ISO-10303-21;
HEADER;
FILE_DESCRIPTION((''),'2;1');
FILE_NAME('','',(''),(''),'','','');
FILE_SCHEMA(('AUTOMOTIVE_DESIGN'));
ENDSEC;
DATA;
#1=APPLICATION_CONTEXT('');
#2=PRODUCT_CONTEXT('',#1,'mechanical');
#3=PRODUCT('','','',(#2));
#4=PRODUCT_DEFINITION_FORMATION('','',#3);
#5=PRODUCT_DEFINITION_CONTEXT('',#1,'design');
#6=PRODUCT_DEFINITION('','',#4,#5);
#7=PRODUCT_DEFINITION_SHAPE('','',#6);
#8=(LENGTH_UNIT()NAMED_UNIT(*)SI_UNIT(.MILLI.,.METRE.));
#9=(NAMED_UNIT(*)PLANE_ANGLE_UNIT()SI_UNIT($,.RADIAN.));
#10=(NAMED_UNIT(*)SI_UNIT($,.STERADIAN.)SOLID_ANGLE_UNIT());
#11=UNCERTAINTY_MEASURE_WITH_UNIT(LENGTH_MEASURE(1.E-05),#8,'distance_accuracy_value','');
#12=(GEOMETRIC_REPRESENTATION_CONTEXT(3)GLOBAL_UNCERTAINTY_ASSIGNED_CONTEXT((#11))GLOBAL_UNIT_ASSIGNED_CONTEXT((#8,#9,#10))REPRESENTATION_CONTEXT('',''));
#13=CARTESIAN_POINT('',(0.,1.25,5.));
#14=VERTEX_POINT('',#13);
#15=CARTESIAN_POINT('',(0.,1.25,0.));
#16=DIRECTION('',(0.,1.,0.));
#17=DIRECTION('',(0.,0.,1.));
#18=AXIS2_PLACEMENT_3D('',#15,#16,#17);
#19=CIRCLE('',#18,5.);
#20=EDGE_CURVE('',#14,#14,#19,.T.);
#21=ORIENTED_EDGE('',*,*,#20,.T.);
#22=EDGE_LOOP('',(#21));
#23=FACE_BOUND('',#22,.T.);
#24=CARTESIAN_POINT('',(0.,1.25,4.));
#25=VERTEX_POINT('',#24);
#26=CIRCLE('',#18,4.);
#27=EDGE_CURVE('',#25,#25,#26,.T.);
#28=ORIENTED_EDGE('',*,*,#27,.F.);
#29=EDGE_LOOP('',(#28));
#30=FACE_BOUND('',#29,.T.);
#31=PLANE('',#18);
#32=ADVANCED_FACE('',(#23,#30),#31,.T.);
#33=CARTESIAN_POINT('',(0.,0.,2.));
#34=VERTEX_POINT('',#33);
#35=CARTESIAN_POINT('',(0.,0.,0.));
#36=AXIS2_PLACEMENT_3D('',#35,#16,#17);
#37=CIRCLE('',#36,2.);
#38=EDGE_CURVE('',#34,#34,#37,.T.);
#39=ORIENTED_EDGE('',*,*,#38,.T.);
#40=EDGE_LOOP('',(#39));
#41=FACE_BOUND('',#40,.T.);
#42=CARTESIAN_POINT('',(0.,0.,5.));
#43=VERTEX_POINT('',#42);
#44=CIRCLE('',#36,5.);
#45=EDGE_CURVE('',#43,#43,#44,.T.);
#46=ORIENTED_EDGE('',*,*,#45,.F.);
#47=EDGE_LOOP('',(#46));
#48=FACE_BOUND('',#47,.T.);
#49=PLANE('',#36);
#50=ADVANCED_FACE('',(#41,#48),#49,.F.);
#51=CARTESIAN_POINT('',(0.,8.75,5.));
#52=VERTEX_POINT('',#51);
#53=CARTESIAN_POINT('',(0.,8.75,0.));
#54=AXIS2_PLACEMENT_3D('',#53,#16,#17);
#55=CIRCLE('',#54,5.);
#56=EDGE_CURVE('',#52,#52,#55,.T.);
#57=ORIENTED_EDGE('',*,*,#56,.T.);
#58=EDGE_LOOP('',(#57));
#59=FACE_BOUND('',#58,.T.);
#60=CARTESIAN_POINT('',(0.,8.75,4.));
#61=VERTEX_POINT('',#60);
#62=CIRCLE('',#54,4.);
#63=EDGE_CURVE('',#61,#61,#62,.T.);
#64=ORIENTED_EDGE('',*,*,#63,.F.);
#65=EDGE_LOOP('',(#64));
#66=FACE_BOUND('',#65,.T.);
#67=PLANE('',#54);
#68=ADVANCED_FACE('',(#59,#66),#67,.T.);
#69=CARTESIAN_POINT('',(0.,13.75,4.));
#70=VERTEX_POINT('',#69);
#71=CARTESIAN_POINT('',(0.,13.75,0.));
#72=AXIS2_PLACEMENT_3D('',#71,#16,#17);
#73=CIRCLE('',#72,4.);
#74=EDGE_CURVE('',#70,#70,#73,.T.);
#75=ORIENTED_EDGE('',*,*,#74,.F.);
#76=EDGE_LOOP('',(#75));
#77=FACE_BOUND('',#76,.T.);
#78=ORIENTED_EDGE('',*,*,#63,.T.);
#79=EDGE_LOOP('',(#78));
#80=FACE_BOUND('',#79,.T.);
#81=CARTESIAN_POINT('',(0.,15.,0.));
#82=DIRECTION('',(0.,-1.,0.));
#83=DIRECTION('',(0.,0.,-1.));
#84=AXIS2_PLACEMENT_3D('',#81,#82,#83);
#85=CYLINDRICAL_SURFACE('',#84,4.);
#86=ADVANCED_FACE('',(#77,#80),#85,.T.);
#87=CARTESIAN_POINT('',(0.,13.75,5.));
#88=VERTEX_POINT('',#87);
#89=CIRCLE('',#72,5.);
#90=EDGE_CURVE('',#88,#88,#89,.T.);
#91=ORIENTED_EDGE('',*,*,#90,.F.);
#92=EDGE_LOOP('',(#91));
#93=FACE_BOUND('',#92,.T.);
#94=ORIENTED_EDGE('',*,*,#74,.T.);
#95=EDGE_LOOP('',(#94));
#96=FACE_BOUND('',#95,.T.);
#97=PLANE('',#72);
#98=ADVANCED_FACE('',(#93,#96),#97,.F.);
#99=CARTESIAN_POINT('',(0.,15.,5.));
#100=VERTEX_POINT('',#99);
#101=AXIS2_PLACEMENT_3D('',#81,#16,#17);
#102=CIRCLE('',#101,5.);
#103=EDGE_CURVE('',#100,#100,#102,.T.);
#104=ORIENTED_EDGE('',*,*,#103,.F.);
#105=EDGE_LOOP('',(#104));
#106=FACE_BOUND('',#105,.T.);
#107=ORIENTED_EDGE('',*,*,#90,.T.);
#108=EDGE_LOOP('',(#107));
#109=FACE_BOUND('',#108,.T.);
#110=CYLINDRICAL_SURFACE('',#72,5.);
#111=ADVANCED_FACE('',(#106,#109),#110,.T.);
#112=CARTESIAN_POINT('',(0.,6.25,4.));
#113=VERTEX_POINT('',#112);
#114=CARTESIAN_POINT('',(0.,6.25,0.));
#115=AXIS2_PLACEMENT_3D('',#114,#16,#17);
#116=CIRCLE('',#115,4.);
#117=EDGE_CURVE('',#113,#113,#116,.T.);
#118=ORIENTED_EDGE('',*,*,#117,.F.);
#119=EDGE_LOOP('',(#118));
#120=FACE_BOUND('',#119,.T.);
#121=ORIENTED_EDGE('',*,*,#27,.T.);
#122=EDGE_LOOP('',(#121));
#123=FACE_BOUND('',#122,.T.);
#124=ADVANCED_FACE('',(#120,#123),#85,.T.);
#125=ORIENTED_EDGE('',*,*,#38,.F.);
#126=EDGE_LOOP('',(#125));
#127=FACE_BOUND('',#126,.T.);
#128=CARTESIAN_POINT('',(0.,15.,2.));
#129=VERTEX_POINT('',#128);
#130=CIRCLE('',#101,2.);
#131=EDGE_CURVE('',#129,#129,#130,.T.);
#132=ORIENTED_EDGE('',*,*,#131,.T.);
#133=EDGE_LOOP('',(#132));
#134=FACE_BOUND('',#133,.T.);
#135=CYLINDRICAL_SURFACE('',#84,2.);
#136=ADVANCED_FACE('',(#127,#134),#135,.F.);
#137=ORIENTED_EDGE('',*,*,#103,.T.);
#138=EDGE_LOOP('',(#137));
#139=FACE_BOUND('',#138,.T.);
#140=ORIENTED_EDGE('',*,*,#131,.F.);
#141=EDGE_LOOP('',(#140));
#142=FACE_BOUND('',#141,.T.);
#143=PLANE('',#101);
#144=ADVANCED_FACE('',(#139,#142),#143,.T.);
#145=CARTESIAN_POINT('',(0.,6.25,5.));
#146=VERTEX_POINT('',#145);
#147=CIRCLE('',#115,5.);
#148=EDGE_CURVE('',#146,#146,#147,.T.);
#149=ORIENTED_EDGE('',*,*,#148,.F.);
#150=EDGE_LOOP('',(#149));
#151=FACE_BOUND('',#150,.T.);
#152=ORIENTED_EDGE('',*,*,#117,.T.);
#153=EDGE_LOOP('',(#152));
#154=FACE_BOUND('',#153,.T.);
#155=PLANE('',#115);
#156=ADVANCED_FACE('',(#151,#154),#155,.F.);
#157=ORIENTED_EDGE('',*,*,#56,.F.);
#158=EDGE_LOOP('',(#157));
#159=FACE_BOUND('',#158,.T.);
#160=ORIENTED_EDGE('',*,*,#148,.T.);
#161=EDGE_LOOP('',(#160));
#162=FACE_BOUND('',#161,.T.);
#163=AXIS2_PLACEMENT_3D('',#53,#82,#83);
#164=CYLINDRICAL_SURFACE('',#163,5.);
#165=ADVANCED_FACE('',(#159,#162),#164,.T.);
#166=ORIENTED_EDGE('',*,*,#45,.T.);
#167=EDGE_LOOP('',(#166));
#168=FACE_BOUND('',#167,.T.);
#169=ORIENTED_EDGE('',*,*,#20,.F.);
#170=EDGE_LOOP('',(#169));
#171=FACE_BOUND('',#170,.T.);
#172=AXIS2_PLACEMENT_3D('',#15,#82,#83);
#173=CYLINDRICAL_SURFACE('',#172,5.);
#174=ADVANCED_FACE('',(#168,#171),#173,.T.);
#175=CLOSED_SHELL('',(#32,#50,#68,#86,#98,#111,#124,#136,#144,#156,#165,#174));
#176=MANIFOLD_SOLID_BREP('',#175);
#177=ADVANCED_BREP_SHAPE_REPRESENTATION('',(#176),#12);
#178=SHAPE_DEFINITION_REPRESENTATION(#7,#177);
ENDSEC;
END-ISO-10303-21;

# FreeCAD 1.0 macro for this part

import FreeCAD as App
import Part
import Sketcher

V = App.Vector

doc = App.newDocument("Part")
params = doc.addObject("Spreadsheet::Sheet", "Params")
for row, (alias, value) in enumerate([
    ("sketch1_diameter", "8 mm"),
    ("sketch1_diameter2", "4 mm"),
    ("pad1_length", "15 mm"),
    ("sketch2_diameter", "10 mm"),
    ("sketch2_diameter2", "4 mm"),
    ("pad2_length", "1.25 mm"),
    ("sketch3_diameter", "10 mm"),
    ("sketch3_diameter2", "4 mm"),
    ("pad3_length", "2.5 mm"),
    ("sketch4_diameter", "10 mm"),
    ("sketch4_diameter2", "4 mm"),
    ("pad4_length", "1.25 mm"),
], start=1):
    params.set(f"A{row}", alias)
    params.set(f"B{row}", "=" + value)
    params.setAlias(f"B{row}", alias)

body = doc.addObject("PartDesign::Body", "Body")

# Sketch on XZ plane
sketch1 = body.newObject("Sketcher::SketchObject", "Sketch")
sketch1.AttachmentSupport = (doc.getObject("XZ_Plane"), [""])
sketch1.MapMode = "FlatFace"
sketch1.addGeometry([
    Part.Circle(V(0, 0, 0), V(0, 0, 1), 4),
    Part.Circle(V(0, 0, 0), V(0, 0, 1), 2),
], False)
sketch1.addConstraint([
    Sketcher.Constraint("Coincident", 0, 3, -1, 1),
    Sketcher.Constraint("Coincident", 1, 3, -1, 1),
    Sketcher.Constraint("Diameter", 0, 8.0),
    Sketcher.Constraint("Diameter", 1, 4.0),
])
sketch1.setExpression("Constraints[2]", "Params.sketch1_diameter")
sketch1.setExpression("Constraints[3]", "Params.sketch1_diameter2")
pad1 = body.newObject("PartDesign::Pad", "Pad")
pad1.Profile = sketch1
pad1.setExpression("Length", "Params.pad1_length")
pad1.Reversed = True

# Sketch on XZ plane
sketch2 = body.newObject("Sketcher::SketchObject", "Sketch001")
sketch2.AttachmentSupport = (doc.getObject("XZ_Plane"), [""])
sketch2.MapMode = "FlatFace"
sketch2.addGeometry([
    Part.Circle(V(0, 0, 0), V(0, 0, 1), 5),
    Part.Circle(V(0, 0, 0), V(0, 0, 1), 2),
], False)
sketch2.addConstraint([
    Sketcher.Constraint("Coincident", 0, 3, -1, 1),
    Sketcher.Constraint("Coincident", 1, 3, -1, 1),
    Sketcher.Constraint("Diameter", 0, 10.0),
    Sketcher.Constraint("Diameter", 1, 4.0),
])
sketch2.setExpression("Constraints[2]", "Params.sketch2_diameter")
sketch2.setExpression("Constraints[3]", "Params.sketch2_diameter2")
pad2 = body.newObject("PartDesign::Pad", "Pad001")
pad2.Profile = sketch2
pad2.setExpression("Length", "Params.pad2_length")
pad2.Reversed = True

# Sketch on XZ plane
sketch3 = body.newObject("Sketcher::SketchObject", "Sketch002")
sketch3.AttachmentSupport = (doc.getObject("XZ_Plane"), [""])
sketch3.MapMode = "FlatFace"
sketch3.AttachmentOffset = App.Placement(V(0, 0, -6.25), App.Rotation())
sketch3.addGeometry([
    Part.Circle(V(0, 0, 0), V(0, 0, 1), 5),
    Part.Circle(V(0, 0, 0), V(0, 0, 1), 2),
], False)
sketch3.addConstraint([
    Sketcher.Constraint("Coincident", 0, 3, -1, 1),
    Sketcher.Constraint("Coincident", 1, 3, -1, 1),
    Sketcher.Constraint("Diameter", 0, 10.0),
    Sketcher.Constraint("Diameter", 1, 4.0),
])
sketch3.setExpression("Constraints[2]", "Params.sketch3_diameter")
sketch3.setExpression("Constraints[3]", "Params.sketch3_diameter2")
pad3 = body.newObject("PartDesign::Pad", "Pad002")
pad3.Profile = sketch3
pad3.setExpression("Length", "Params.pad3_length")
pad3.Reversed = True

# Sketch on XZ plane
sketch4 = body.newObject("Sketcher::SketchObject", "Sketch003")
sketch4.AttachmentSupport = (doc.getObject("XZ_Plane"), [""])
sketch4.MapMode = "FlatFace"
sketch4.AttachmentOffset = App.Placement(V(0, 0, -13.75), App.Rotation())
sketch4.addGeometry([
    Part.Circle(V(0, 0, 0), V(0, 0, 1), 5),
    Part.Circle(V(0, 0, 0), V(0, 0, 1), 2),
], False)
sketch4.addConstraint([
    Sketcher.Constraint("Coincident", 0, 3, -1, 1),
    Sketcher.Constraint("Coincident", 1, 3, -1, 1),
    Sketcher.Constraint("Diameter", 0, 10.0),
    Sketcher.Constraint("Diameter", 1, 4.0),
])
sketch4.setExpression("Constraints[2]", "Params.sketch4_diameter")
sketch4.setExpression("Constraints[3]", "Params.sketch4_diameter2")
pad4 = body.newObject("PartDesign::Pad", "Pad003")
pad4.Profile = sketch4
pad4.setExpression("Length", "Params.pad4_length")
pad4.Reversed = True

doc.recompute()
